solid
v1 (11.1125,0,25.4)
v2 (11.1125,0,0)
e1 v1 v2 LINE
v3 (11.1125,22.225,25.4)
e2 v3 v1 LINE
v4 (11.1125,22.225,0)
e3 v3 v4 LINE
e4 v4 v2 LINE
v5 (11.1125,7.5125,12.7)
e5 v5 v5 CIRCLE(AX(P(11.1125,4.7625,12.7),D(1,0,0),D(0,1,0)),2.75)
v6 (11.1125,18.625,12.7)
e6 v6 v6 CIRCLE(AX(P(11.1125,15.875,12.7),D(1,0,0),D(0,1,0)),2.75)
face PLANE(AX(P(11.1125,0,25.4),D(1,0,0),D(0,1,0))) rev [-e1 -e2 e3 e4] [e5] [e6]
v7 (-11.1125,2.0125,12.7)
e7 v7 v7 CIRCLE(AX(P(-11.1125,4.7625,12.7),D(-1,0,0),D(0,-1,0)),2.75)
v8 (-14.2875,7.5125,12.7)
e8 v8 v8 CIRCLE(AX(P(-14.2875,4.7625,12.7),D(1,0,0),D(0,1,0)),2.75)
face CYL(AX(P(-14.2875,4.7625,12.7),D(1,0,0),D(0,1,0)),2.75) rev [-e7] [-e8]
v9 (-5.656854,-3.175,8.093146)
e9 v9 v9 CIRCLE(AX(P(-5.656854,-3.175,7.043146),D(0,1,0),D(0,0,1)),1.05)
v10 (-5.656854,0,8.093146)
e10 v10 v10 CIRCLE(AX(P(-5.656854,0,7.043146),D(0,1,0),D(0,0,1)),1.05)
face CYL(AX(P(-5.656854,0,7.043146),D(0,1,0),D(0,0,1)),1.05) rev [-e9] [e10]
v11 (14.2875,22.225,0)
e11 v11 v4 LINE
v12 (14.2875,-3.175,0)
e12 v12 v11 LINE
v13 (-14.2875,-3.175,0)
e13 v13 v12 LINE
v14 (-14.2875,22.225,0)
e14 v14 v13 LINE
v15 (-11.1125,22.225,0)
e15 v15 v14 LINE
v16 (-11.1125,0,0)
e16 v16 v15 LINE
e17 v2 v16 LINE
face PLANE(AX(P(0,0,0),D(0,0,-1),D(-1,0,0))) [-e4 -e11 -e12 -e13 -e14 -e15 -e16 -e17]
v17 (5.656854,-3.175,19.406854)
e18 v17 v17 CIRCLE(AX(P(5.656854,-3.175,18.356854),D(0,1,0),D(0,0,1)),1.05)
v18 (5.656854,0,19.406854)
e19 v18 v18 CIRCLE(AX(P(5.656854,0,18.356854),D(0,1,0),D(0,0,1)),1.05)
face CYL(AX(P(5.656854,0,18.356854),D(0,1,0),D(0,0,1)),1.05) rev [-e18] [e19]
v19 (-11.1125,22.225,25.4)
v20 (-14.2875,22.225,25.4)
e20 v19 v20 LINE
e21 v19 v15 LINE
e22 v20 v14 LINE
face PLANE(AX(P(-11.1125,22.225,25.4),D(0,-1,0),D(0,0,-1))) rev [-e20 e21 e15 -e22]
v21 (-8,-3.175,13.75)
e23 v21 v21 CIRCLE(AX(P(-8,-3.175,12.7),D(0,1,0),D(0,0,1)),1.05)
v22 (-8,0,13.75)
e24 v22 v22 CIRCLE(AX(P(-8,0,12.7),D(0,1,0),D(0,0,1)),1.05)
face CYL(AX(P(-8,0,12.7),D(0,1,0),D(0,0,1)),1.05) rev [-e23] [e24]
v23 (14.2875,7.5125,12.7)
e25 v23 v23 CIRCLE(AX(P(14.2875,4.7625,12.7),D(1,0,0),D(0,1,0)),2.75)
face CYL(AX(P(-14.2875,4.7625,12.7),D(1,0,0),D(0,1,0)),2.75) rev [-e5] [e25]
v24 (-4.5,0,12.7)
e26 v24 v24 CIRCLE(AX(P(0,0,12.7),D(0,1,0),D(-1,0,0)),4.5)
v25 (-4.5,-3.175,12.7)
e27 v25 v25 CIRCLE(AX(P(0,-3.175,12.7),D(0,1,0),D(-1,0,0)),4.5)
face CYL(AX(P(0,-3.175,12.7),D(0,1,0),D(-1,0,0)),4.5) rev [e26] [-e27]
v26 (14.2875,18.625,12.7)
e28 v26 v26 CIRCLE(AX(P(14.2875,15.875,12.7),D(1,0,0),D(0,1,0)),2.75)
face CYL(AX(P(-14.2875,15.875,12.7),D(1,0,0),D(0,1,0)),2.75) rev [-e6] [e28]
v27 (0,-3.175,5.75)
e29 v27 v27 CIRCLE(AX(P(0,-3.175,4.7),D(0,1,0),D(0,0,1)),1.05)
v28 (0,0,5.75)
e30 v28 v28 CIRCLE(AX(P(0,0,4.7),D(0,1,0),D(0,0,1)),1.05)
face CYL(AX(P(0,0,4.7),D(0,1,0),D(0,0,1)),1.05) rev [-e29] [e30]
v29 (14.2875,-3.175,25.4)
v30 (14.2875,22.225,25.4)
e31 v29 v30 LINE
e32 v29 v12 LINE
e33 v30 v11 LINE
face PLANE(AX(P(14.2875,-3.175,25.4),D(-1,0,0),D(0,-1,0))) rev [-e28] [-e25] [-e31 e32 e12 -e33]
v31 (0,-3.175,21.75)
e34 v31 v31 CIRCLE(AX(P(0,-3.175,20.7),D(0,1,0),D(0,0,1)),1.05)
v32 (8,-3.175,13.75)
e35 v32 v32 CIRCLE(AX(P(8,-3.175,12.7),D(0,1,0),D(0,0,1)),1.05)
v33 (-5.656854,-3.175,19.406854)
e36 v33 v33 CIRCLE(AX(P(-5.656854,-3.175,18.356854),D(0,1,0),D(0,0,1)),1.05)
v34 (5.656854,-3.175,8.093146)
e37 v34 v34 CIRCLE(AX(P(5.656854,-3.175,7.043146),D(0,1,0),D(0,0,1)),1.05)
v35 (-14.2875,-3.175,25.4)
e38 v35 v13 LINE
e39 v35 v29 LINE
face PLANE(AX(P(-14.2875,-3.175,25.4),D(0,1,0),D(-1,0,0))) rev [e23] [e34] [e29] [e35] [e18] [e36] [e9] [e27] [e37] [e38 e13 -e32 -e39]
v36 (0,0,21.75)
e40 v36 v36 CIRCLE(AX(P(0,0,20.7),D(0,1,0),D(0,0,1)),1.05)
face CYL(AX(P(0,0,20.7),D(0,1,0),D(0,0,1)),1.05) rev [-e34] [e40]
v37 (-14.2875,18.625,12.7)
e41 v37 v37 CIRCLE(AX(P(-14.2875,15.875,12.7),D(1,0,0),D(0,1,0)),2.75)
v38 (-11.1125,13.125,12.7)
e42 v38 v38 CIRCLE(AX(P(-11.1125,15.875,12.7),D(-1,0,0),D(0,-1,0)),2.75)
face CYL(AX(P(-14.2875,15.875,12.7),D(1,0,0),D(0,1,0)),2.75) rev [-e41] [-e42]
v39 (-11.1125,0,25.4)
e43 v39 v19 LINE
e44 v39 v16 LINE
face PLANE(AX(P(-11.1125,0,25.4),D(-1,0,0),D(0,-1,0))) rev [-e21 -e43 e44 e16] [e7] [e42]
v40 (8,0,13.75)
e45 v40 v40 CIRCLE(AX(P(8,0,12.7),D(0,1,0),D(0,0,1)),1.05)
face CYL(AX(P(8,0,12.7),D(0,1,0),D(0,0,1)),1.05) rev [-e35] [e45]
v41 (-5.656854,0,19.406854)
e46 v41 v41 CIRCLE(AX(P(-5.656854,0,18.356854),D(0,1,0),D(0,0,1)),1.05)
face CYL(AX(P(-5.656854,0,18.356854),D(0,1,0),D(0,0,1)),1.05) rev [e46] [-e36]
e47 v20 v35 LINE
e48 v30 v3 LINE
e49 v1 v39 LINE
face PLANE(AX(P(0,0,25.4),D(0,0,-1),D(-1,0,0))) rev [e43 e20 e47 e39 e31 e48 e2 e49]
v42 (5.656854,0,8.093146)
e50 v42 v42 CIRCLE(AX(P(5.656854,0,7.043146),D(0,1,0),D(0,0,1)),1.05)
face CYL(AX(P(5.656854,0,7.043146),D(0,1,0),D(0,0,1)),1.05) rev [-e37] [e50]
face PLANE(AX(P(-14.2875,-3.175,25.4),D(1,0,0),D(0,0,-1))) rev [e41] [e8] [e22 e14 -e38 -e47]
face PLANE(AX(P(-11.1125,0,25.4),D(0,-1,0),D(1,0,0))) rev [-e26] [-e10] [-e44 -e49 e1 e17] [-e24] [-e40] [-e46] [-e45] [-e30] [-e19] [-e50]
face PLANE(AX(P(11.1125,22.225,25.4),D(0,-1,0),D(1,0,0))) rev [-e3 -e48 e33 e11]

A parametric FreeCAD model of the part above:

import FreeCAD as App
import Part
import Sketcher
Q = App.Units.Quantity

doc = App.newDocument("Part")
body = doc.addObject("PartDesign::Body", "Body")

sketch1 = body.newObject("Sketcher::SketchObject", "Sketch")
sketch1.AttachmentSupport = (doc.getObject("XY_Plane"), [""])
sketch1.MapMode = "FlatFace"
sketch1.addGeometry([
    Part.LineSegment(App.Vector(11.1, 0, 0), App.Vector(-11.1, 0, 0)),
    Part.LineSegment(App.Vector(-11.1, 0, 0), App.Vector(-11.1, 22.2, 0)),
    Part.LineSegment(App.Vector(-11.1, 22.2, 0), App.Vector(-14.3, 22.2, 0)),
    Part.LineSegment(App.Vector(-14.3, 22.2, 0), App.Vector(-14.3, -3.2, 0)),
    Part.LineSegment(App.Vector(-14.3, -3.2, 0), App.Vector(14.3, -3.2, 0)),
    Part.LineSegment(App.Vector(14.3, -3.2, 0), App.Vector(14.3, 22.2, 0)),
    Part.LineSegment(App.Vector(14.3, 22.2, 0), App.Vector(11.1, 22.2, 0)),
    Part.LineSegment(App.Vector(11.1, 22.2, 0), App.Vector(11.1, 0, 0)),
], False)
sketch1.addConstraint([
    Sketcher.Constraint("Coincident", 0, 2, 1, 1),
    Sketcher.Constraint("Coincident", 1, 2, 2, 1),
    Sketcher.Constraint("Coincident", 2, 2, 3, 1),
    Sketcher.Constraint("Coincident", 3, 2, 4, 1),
    Sketcher.Constraint("Coincident", 4, 2, 5, 1),
    Sketcher.Constraint("Coincident", 5, 2, 6, 1),
    Sketcher.Constraint("Coincident", 6, 2, 7, 1),
    Sketcher.Constraint("Coincident", 7, 2, 0, 1),
    Sketcher.Constraint("Horizontal", 0),
    Sketcher.Constraint("Vertical", 1),
    Sketcher.Constraint("Horizontal", 2),
    Sketcher.Constraint("Vertical", 3),
    Sketcher.Constraint("Horizontal", 4),
    Sketcher.Constraint("Vertical", 5),
    Sketcher.Constraint("Horizontal", 6),
    Sketcher.Constraint("Vertical", 7),
    Sketcher.Constraint("Symmetric", 0, 2, 7, 2, -1, 1),
    Sketcher.Constraint("Symmetric", 2, 2, 5, 2, -2),
    Sketcher.Constraint("Equal", 0, 1),
    Sketcher.Constraint("DistanceY", 3, 2, 3, 1, Q("1 in")),
    Sketcher.Constraint("DistanceX", 0, 2, 4, 2, Q("1 in")),
    Sketcher.Constraint("DistanceX", 0, 2, 0, 1, Q("0.875 in")),
])
pad1 = body.newObject("PartDesign::Pad", "Pad")
pad1.Profile = sketch1
pad1.Length = Q("1 in")

sketch2 = body.newObject("Sketcher::SketchObject", "Sketch001")
sketch2.AttachmentSupport = (doc.getObject("YZ_Plane"), [""])
sketch2.MapMode = "FlatFace"
sketch2.AttachmentOffset = App.Placement(App.Vector(0, 0, 0.5625 * 25.4), App.Rotation())
sketch2.addGeometry([
    Part.Circle(App.Vector(15.9, 12.7, 0), App.Vector(0, 0, 1), 2.8),
    Part.Circle(App.Vector(4.8, 12.7, 0), App.Vector(0, 0, 1), 2.8),
], False)
sketch2.addConstraint([
    Sketcher.Constraint("Equal", 0, 1),
    Sketcher.Constraint("Horizontal", 0, 3, 1, 3),
    Sketcher.Constraint("DistanceY", -1, 1, 0, 3, Q("0.5 in")),
    Sketcher.Constraint("Diameter", 0, Q("5.5 mm")),
    Sketcher.Constraint("DistanceX", -1, 1, 0, 3, Q("0.625 in")),
    Sketcher.Constraint("DistanceX", -1, 1, 1, 3, Q("0.1875 in")),
])
pocket1 = body.newObject("PartDesign::Pocket", "Pocket")
pocket1.Profile = sketch2
pocket1.Type = "ThroughAll"

sketch3 = body.newObject("Sketcher::SketchObject", "Sketch002")
sketch3.AttachmentSupport = (doc.getObject("XZ_Plane"), [""])
sketch3.MapMode = "FlatFace"
sketch3.addGeometry(Part.Circle(App.Vector(0, 12.7, 0), App.Vector(0, 0, 1), 4.5), False)
sketch3.addConstraint([
    Sketcher.Constraint("PointOnObject", 0, 3, -2),
    Sketcher.Constraint("DistanceY", -1, 1, 0, 3, Q("0.5 in")),
    Sketcher.Constraint("Diameter", 0, Q("9 mm")),
])
pocket2 = body.newObject("PartDesign::Pocket", "Pocket001")
pocket2.Profile = sketch3
pocket2.Type = "ThroughAll"
pocket2.Reversed = True

sketch4 = body.newObject("Sketcher::SketchObject", "Sketch003")
sketch4.AttachmentSupport = (doc.getObject("XZ_Plane"), [""])
sketch4.MapMode = "FlatFace"
sketch4.addGeometry([
    Part.Circle(App.Vector(0, 4.7, 0), App.Vector(0, 0, 1), 1.1),
    Part.Circle(App.Vector(5.7, 7, 0), App.Vector(0, 0, 1), 1.1),
    Part.Circle(App.Vector(8, 12.7, 0), App.Vector(0, 0, 1), 1.1),
    Part.Circle(App.Vector(5.7, 18.4, 0), App.Vector(0, 0, 1), 1.1),
    Part.Circle(App.Vector(0, 20.7, 0), App.Vector(0, 0, 1), 1.1),
    Part.Circle(App.Vector(-5.7, 18.4, 0), App.Vector(0, 0, 1), 1.1),
    Part.Circle(App.Vector(-8, 12.7, 0), App.Vector(0, 0, 1), 1.1),
    Part.Circle(App.Vector(-5.7, 7, 0), App.Vector(0, 0, 1), 1.1),
], False)
sketch4.addConstraint([
    Sketcher.Constraint("Equal", 0, 1),
    Sketcher.Constraint("Equal", 1, 2),
    Sketcher.Constraint("Equal", 2, 3),
    Sketcher.Constraint("Equal", 3, 4),
    Sketcher.Constraint("Equal", 4, 5),
    Sketcher.Constraint("Equal", 5, 6),
    Sketcher.Constraint("Equal", 6, 7),
    Sketcher.Constraint("Symmetric", 3, 3, 5, 3, -2),
    Sketcher.Constraint("Symmetric", 2, 3, 6, 3, -2),
    Sketcher.Constraint("Symmetric", 1, 3, 7, 3, -2),
    Sketcher.Constraint("PointOnObject", 0, 3, -2),
    Sketcher.Constraint("PointOnObject", 4, 3, -2),
    Sketcher.Constraint("Vertical", 1, 3, 3, 3),
    Sketcher.Constraint("DistanceY", -1, 1, 2, 3, Q("0.5 in")),
    Sketcher.Constraint("Diameter", 0, Q("2.1 mm")),
    Sketcher.Constraint("DistanceY", -1, 1, 0, 3, Q("4.7 mm")),
    Sketcher.Constraint("DistanceX", -1, 1, 2, 3, Q("8 mm")),
    Sketcher.Constraint("DistanceY", -1, 1, 4, 3, Q("20.7 mm")),
    Sketcher.Constraint("DistanceY", 1, 3, 3, 3, Q("11.313709 mm")),
    Sketcher.Constraint("DistanceX", 5, 3, 3, 3, Q("11.313709 mm")),
    Sketcher.Constraint("DistanceY", -1, 1, 1, 3, Q("7.043146 mm")),
])
doc.recompute()
hole = body.newObject("PartDesign::Hole", "Hole")
hole.Profile = sketch4
hole.ThreadType = "None"
hole.Diameter = 2.1
hole.DepthType = "ThroughAll"
hole.Reversed = True

doc.recompute()
